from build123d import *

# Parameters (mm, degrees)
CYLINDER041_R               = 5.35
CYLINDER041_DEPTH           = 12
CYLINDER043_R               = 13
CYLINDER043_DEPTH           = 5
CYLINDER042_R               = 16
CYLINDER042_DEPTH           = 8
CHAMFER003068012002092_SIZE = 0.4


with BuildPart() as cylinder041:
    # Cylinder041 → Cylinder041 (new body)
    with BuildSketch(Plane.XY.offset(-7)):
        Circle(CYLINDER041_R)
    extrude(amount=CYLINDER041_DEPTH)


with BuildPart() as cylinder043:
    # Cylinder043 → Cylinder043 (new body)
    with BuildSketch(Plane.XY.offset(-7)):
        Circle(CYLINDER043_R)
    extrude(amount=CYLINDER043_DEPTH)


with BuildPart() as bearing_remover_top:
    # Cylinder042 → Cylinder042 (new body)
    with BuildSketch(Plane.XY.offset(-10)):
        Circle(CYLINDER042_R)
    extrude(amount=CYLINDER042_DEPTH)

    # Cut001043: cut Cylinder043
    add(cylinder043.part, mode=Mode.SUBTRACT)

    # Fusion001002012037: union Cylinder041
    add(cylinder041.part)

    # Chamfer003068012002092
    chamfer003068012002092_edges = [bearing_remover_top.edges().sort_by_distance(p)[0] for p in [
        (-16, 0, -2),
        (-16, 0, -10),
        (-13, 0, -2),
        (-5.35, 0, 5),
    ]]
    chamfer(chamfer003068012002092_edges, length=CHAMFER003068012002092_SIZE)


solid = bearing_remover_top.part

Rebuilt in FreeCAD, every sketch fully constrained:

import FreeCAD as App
import Part
import Sketcher
Q = App.Units.Quantity


def edges_at(feature, points):
    """Names of the edges that pass closest to the given points."""
    edges = feature.Shape.Edges
    near = lambda p: min(range(len(edges)), key=lambda i: edges[i].distToShape(Part.Vertex(*p))[0])
    return sorted({f"Edge{near(p) + 1}" for p in points})

doc = App.newDocument("Part")
body = doc.addObject("PartDesign::Body", "Body")

# Sketch on XY plane
sketch1 = body.newObject("Sketcher::SketchObject", "Sketch")
sketch1.AttachmentSupport = (doc.getObject("XY_Plane"), [""])
sketch1.MapMode = "FlatFace"
sketch1.AttachmentOffset = App.Placement(App.Vector(0, 0, -7), App.Rotation())
sketch1.addGeometry(Part.Circle(App.Vector(0, 0, 0), App.Vector(0, 0, 1), 5), False)
sketch1.addConstraint(Sketcher.Constraint("Coincident", 0, 3, -1, 1))
sketch1.addConstraint(Sketcher.Constraint("Diameter", 0, Q("10.7 mm")))
pad1 = body.newObject("PartDesign::Pad", "Pad")
pad1.Profile = sketch1
pad1.Length = 12
body2 = doc.addObject("PartDesign::Body", "Body001")

# Sketch on XY plane
sketch2 = body2.newObject("Sketcher::SketchObject", "Sketch001")
sketch2.AttachmentSupport = (doc.getObject("XY_Plane001"), [""])
sketch2.MapMode = "FlatFace"
sketch2.AttachmentOffset = App.Placement(App.Vector(0, 0, -7), App.Rotation())
sketch2.addGeometry(Part.Circle(App.Vector(0, 0, 0), App.Vector(0, 0, 1), 13), False)
sketch2.addConstraint(Sketcher.Constraint("Coincident", 0, 3, -1, 1))
sketch2.addConstraint(Sketcher.Constraint("Diameter", 0, Q("26 mm")))
pad2 = body2.newObject("PartDesign::Pad", "Pad001")
pad2.Profile = sketch2
pad2.Length = 5
body3 = doc.addObject("PartDesign::Body", "Body002")

# Sketch on XY plane
sketch3 = body3.newObject("Sketcher::SketchObject", "Sketch002")
sketch3.AttachmentSupport = (doc.getObject("XY_Plane002"), [""])
sketch3.MapMode = "FlatFace"
sketch3.AttachmentOffset = App.Placement(App.Vector(0, 0, -10), App.Rotation())
sketch3.addGeometry(Part.Circle(App.Vector(0, 0, 0), App.Vector(0, 0, 1), 16), False)
sketch3.addConstraint(Sketcher.Constraint("Coincident", 0, 3, -1, 1))
sketch3.addConstraint(Sketcher.Constraint("Diameter", 0, Q("32 mm")))
pad3 = body3.newObject("PartDesign::Pad", "Pad002")
pad3.Profile = sketch3
pad3.Length = 8
doc.recompute()

boolean = body3.newObject("PartDesign::Boolean", "Boolean")
boolean.Type = "Cut"
boolean.addObjects([body2])
doc.recompute()

boolean2 = body3.newObject("PartDesign::Boolean", "Boolean001")
boolean2.Type = "Fuse"
boolean2.addObjects([body])
doc.recompute()

chamfer = body3.newObject("PartDesign::Chamfer", "Chamfer")
chamfer.Base = (boolean2, edges_at(boolean2, [
    (-16, 0, -2),
    (-16, 0, -10),
    (-13, 0, -2),
    (-5.35, 0, 5),
]))
chamfer.Size = 0.4

doc.recompute()
